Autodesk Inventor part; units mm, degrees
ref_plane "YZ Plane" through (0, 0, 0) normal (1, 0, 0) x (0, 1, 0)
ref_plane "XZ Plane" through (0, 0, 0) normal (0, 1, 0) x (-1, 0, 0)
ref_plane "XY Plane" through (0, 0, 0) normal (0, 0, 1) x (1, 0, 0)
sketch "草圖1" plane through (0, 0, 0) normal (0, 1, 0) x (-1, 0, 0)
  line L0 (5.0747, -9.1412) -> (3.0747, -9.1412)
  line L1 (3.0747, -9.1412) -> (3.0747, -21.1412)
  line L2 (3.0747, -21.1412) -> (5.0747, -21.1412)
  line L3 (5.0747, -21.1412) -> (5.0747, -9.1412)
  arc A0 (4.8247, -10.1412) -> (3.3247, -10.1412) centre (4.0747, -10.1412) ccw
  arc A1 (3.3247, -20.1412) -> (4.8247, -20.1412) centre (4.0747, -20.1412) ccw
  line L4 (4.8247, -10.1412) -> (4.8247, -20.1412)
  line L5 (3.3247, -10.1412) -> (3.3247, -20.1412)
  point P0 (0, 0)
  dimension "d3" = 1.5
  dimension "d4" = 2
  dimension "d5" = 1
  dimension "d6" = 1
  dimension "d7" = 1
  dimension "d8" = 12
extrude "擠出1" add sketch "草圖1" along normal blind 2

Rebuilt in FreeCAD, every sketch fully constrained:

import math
import FreeCAD as App
import Part
import Sketcher

V = App.Vector
Q = App.Units.Quantity


def add_polygon(sketch, points):
    """Adds a closed chain of lines whose ends are joined by coincident constraints."""
    first, n = sketch.GeometryCount, len(points)
    for a, b in zip(points, points[1:] + points[:1]):
        sketch.addGeometry(Part.LineSegment(App.Vector(*a, 0), App.Vector(*b, 0)), False)
    for i in range(n):
        sketch.addConstraint(Sketcher.Constraint("Coincident", first + i, 2, first + (i + 1) % n, 1))

doc = App.newDocument("Part")
body = doc.addObject("PartDesign::Body", "Body")

# Sketch on XZ plane
sketch1 = body.newObject("Sketcher::SketchObject", "Sketch")
sketch1.AttachmentSupport = (doc.getObject("XZ_Plane"), [""])
sketch1.MapMode = "FlatFace"
add_polygon(sketch1, [(-5.1, -21.1), (-5.1, -9.1), (-3.1, -9.1), (-3.1, -21.1)])  # lines 0-3
sketch1.addGeometry(Part.ArcOfCircle(Part.Circle(V(-4.1, -10.1, 0), V(0, 0, 1), 0.8), math.radians(0), math.radians(180)), False)  # 4
sketch1.addGeometry(Part.LineSegment(V(-4.8, -10.1, 0), V(-4.8, -20.1, 0)), False)  # 5
sketch1.addGeometry(Part.ArcOfCircle(Part.Circle(V(-4.1, -20.1, 0), V(0, 0, 1), 0.8), math.radians(180), math.radians(360)), False)  # 6
sketch1.addGeometry(Part.LineSegment(V(-3.3, -20.1, 0), V(-3.3, -10.1, 0)), False)  # 7
sketch1.addConstraint(Sketcher.Constraint("Tangent", 4, 2, 5, 1))
sketch1.addConstraint(Sketcher.Constraint("Tangent", 5, 2, 6, 1))
sketch1.addConstraint(Sketcher.Constraint("Tangent", 6, 2, 7, 1))
sketch1.addConstraint(Sketcher.Constraint("Tangent", 7, 2, 4, 1))
sketch1.addConstraint(Sketcher.Constraint("Vertical", 0))
sketch1.addConstraint(Sketcher.Constraint("Horizontal", 1))
sketch1.addConstraint(Sketcher.Constraint("Vertical", 2))
sketch1.addConstraint(Sketcher.Constraint("Horizontal", 3))
sketch1.addConstraint(Sketcher.Constraint("Vertical", 5))
sketch1.addConstraint(Sketcher.Constraint("Vertical", 7))
sketch1.addConstraint(Sketcher.Constraint("DistanceX", 1, 1, 1, 2, Q("2 mm")))
sketch1.addConstraint(Sketcher.Constraint("DistanceY", 0, 1, 0, 2, Q("12 mm")))
sketch1.addConstraint(Sketcher.Constraint("Radius", 4, Q("0.75 mm")))
sketch1.addConstraint(Sketcher.Constraint("DistanceX", 0, 2, 4, 3, Q("1 mm")))
sketch1.addConstraint(Sketcher.Constraint("DistanceY", 4, 3, 0, 2, Q("1 mm")))
sketch1.addConstraint(Sketcher.Constraint("DistanceY", 2, 2, 6, 3, Q("1 mm")))
sketch1.addConstraint(Sketcher.Constraint("DistanceX", 4, 3, -1, 1, Q("4.0747 mm")))
sketch1.addConstraint(Sketcher.Constraint("DistanceY", 4, 3, -1, 1, Q("10.1412 mm")))
pad1 = body.newObject("PartDesign::Pad", "Pad")
pad1.Profile = sketch1
pad1.Length = 2
pad1.Reversed = True

doc.recompute()
